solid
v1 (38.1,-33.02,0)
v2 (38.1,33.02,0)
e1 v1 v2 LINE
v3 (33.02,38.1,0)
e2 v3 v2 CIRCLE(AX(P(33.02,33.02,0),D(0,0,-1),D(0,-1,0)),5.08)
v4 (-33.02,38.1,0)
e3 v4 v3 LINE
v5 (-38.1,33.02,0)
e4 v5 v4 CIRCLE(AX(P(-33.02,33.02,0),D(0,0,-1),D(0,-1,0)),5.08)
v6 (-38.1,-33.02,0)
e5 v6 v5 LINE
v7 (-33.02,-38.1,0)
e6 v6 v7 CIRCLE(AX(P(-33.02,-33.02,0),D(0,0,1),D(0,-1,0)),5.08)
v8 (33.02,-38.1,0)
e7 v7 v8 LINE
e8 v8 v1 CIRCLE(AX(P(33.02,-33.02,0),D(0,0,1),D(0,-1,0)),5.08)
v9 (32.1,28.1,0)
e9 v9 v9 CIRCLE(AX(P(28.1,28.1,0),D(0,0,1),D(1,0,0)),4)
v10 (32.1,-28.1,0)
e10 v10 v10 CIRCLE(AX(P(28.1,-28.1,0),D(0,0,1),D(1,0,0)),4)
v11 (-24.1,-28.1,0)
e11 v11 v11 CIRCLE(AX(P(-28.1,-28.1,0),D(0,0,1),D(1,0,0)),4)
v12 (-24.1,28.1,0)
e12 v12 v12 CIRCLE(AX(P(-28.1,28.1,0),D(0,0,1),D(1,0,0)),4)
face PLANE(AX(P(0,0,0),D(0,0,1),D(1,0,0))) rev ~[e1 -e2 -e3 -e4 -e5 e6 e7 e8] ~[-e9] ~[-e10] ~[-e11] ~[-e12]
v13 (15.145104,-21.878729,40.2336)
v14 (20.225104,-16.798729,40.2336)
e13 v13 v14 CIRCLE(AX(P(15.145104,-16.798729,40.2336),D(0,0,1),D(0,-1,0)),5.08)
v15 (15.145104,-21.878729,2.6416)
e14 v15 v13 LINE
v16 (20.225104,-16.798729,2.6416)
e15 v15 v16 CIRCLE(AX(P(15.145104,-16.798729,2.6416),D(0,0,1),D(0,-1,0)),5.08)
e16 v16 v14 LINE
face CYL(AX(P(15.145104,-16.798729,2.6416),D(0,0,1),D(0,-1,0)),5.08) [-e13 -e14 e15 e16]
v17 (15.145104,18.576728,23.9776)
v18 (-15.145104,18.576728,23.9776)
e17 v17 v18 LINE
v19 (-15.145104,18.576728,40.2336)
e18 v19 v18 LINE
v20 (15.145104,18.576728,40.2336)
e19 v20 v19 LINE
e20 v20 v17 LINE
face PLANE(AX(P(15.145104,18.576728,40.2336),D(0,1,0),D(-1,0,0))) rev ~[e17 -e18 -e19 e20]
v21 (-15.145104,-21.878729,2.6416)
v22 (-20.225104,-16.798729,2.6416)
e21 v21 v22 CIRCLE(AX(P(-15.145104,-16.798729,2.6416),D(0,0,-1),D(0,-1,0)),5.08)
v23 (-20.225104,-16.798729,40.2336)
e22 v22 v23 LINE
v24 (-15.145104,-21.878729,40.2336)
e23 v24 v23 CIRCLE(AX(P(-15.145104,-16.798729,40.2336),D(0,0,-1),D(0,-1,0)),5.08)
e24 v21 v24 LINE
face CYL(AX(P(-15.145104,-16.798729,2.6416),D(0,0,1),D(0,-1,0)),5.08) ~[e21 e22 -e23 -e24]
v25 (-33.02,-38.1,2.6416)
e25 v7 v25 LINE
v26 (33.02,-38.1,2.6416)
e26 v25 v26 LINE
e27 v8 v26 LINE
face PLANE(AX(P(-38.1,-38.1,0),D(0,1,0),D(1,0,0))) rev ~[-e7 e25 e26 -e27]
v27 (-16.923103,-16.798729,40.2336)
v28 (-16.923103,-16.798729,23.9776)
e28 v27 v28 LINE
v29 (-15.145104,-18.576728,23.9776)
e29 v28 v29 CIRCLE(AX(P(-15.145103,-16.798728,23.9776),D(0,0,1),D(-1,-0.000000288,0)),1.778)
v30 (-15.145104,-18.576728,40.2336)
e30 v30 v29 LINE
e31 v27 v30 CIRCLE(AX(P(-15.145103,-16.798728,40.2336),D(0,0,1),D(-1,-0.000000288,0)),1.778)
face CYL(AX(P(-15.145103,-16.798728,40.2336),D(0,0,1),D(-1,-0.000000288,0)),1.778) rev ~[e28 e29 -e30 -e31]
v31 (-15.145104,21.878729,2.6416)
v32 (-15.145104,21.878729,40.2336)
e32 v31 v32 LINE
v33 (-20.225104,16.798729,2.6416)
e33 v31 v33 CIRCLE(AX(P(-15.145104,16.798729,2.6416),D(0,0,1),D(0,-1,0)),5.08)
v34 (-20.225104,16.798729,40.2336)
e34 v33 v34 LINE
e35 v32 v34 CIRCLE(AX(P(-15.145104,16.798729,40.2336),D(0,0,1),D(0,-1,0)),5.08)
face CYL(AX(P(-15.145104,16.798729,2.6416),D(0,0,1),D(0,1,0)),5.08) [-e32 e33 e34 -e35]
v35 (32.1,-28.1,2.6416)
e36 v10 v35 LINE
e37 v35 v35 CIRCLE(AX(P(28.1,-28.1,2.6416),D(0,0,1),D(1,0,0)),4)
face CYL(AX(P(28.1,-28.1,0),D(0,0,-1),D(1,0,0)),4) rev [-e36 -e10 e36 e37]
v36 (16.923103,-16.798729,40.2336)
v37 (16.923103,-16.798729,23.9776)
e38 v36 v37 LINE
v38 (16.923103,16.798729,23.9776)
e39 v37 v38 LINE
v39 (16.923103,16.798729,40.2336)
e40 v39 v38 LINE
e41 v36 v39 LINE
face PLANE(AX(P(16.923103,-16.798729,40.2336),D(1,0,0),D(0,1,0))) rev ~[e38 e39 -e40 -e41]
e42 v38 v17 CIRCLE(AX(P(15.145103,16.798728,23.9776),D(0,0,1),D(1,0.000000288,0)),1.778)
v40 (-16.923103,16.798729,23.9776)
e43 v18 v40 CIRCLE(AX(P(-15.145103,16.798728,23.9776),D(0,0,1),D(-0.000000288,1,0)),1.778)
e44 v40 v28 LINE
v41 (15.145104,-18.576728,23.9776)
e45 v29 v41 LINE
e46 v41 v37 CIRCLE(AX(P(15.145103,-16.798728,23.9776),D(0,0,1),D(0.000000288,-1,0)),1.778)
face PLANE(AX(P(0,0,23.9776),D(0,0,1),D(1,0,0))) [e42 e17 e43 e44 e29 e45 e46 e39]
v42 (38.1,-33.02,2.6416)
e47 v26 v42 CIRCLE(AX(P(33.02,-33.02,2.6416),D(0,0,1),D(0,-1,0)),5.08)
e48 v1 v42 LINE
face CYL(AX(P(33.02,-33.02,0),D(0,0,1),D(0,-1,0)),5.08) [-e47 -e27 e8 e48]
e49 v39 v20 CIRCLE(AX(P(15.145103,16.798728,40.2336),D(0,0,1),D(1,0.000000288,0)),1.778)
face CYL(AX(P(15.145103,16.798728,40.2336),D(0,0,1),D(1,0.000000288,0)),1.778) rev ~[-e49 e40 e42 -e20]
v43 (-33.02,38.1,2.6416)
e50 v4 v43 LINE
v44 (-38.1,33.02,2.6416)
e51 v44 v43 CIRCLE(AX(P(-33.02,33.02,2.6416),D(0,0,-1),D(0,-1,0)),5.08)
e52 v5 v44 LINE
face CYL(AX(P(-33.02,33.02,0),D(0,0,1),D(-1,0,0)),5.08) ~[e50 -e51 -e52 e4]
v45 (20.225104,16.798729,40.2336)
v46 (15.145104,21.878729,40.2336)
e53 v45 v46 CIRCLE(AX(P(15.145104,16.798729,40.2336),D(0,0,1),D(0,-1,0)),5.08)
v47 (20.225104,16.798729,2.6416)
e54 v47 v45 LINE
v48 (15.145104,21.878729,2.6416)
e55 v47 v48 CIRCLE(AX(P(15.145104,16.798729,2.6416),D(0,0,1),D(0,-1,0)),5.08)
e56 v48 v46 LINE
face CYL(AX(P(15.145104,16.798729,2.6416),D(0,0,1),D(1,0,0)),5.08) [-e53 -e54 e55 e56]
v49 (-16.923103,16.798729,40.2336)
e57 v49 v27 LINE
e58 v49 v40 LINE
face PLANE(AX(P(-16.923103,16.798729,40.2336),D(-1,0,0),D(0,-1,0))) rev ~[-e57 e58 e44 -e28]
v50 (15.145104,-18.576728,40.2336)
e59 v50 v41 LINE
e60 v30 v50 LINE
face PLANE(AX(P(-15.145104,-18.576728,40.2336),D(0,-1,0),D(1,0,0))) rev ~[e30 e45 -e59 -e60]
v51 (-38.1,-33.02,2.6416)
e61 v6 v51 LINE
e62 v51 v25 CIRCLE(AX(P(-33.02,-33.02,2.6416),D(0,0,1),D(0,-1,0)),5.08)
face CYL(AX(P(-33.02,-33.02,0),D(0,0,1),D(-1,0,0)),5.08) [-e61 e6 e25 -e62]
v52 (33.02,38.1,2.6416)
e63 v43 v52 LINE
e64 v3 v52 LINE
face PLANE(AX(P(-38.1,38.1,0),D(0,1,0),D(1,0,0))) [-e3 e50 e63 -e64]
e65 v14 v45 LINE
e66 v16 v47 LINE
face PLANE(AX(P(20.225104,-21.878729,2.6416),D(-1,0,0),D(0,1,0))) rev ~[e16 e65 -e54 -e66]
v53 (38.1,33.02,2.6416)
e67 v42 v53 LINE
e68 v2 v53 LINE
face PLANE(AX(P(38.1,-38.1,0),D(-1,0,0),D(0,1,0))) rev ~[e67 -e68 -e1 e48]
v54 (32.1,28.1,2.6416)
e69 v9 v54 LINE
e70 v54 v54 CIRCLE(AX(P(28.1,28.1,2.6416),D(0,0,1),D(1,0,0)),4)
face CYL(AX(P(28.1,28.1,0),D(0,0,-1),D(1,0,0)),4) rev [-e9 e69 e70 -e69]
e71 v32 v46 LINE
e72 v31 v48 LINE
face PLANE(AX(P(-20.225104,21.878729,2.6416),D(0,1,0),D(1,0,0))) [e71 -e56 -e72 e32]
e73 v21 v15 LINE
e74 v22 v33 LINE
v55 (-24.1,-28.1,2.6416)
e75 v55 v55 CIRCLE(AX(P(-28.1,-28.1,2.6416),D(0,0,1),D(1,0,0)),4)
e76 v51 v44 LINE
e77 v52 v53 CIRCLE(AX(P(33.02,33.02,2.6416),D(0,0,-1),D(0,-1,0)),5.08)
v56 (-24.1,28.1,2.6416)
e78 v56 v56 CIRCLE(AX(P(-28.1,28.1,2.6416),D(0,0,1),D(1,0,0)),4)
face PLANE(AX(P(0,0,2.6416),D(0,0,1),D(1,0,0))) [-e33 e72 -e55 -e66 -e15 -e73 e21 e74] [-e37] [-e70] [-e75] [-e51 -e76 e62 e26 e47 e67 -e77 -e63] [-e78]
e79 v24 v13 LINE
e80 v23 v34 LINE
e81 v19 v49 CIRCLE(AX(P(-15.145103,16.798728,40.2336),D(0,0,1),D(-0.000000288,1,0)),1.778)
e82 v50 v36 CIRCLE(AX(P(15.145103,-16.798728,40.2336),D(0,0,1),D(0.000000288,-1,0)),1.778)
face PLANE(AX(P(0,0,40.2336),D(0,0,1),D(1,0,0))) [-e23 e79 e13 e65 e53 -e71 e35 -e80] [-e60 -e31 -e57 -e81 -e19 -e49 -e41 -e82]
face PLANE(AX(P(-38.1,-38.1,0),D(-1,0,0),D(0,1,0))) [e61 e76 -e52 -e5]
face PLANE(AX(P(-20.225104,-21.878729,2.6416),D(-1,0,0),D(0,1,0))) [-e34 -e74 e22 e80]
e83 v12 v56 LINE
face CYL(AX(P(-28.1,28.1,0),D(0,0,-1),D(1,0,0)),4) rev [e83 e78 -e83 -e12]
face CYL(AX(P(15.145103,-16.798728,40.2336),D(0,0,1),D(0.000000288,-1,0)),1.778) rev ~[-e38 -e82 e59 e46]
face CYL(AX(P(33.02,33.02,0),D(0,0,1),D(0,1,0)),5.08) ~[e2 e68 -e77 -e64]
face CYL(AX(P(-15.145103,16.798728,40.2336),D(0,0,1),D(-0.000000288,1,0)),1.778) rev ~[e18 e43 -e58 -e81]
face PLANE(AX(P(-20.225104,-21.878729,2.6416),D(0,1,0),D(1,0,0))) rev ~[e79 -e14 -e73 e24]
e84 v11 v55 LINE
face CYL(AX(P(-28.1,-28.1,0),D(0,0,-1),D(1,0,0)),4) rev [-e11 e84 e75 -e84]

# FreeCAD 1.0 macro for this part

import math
import FreeCAD as App
import Part
import Sketcher
from FreeCAD import Vector
Q = App.Units.Quantity


def edges_at(feature, points):
    """Names of the edges that pass closest to the given points."""
    edges = feature.Shape.Edges
    near = lambda p: min(range(len(edges)), key=lambda i: edges[i].distToShape(Part.Vertex(*p))[0])
    return sorted({f"Edge{near(p) + 1}" for p in points})

doc = App.newDocument("Part")
body = doc.addObject("PartDesign::Body", "Body")

# Sketch on XY plane
sketch1 = doc.addObject("Sketcher::SketchObject", "Sketch")
body.addObject(sketch1)
sketch1.AttachmentSupport = (doc.XY_Plane, [""])
sketch1.MapMode = "FlatFace"
sketch1.addGeometry([
    Part.LineSegment(Vector(-38.1, 38.1, 0), Vector(-38.1, -38.1, 0)),  # 0
    Part.LineSegment(Vector(-38.1, -38.1, 0), Vector(38.1, -38.1, 0)),  # 1
    Part.LineSegment(Vector(38.1, -38.1, 0), Vector(38.1, 38.1, 0)),  # 2
    Part.LineSegment(Vector(38.1, 38.1, 0), Vector(-38.1, 38.1, 0)),  # 3
    Part.Circle(Vector(-28.1, -28.1, 0), Vector(0, 0, 1), 4),  # 4
    Part.Circle(Vector(28.1, -28.1, 0), Vector(0, 0, 1), 4),  # 5
    Part.Circle(Vector(-28.1, 28.1, 0), Vector(0, 0, 1), 4),  # 6
    Part.Circle(Vector(28.1, 28.1, 0), Vector(0, 0, 1), 4),  # 7
], False)
sketch1.addConstraint([
    Sketcher.Constraint("Coincident", 0, 2, 1, 1),
    Sketcher.Constraint("Coincident", 1, 2, 2, 1),
    Sketcher.Constraint("Coincident", 2, 2, 3, 1),
    Sketcher.Constraint("Coincident", 3, 2, 0, 1),
    Sketcher.Constraint("Vertical", 0),
    Sketcher.Constraint("Horizontal", 1),
    Sketcher.Constraint("Vertical", 2),
    Sketcher.Constraint("Horizontal", 3),
    Sketcher.Constraint("Equal", 4, 5),
    Sketcher.Constraint("Equal", 5, 6),
    Sketcher.Constraint("Equal", 6, 7),
    Sketcher.Constraint("Symmetric", 5, 3, 6, 3, -1, 1),
    Sketcher.Constraint("Symmetric", 4, 3, 7, 3, -1, 1),
    Sketcher.Constraint("Symmetric", 0, 2, 2, 2, -1, 1),
    Sketcher.Constraint("Symmetric", 4, 3, 5, 3, -2),
    Sketcher.Constraint("Equal", 3, 0),
    Sketcher.Constraint("DistanceX", 1, 1, 1, 2, Q("3 in")),
    Sketcher.Constraint("Diameter", 4, 8.0),
    Sketcher.Constraint("DistanceX", 4, 3, -1, 1, 28.1),
    Sketcher.Constraint("DistanceY", 4, 3, -1, 1, 28.1),
])
pad1 = doc.addObject("PartDesign::Pad", "Pad")
body.addObject(pad1)
pad1.Profile = sketch1
pad1.Length = Q("0.104 in")
doc.recompute()

fillet = doc.addObject("PartDesign::Fillet", "Fillet")
body.addObject(fillet)
fillet.Base = (pad1, edges_at(pad1, [
    (-38.1, -38.1, 1.321),
    (38.1, -38.1, 1.321),
    (38.1, 38.1, 1.321),
    (-38.1, 38.1, 1.321),
]))
fillet.Radius = Q("0.2 in")

# Sketch on XY plane
sketch2 = doc.addObject("Sketcher::SketchObject", "Sketch001")
body.addObject(sketch2)
sketch2.AttachmentSupport = (doc.XY_Plane, [""])
sketch2.MapMode = "FlatFace"
sketch2.AttachmentOffset = App.Placement(Vector(0, 0, 0.104 * 25.4), App.Rotation())
sketch2.addGeometry([
    Part.LineSegment(Vector(-20.225104, 21.878729, 0), Vector(-20.225104, -21.878729, 0)),
    Part.LineSegment(Vector(-20.225104, -21.878729, 0), Vector(20.225104, -21.878729, 0)),
    Part.LineSegment(Vector(20.225104, -21.878729, 0), Vector(20.225104, 21.878729, 0)),
    Part.LineSegment(Vector(20.225104, 21.878729, 0), Vector(-20.225104, 21.878729, 0)),
], False)
sketch2.addConstraint([
    Sketcher.Constraint("Coincident", 0, 2, 1, 1),
    Sketcher.Constraint("Coincident", 1, 2, 2, 1),
    Sketcher.Constraint("Coincident", 2, 2, 3, 1),
    Sketcher.Constraint("Coincident", 3, 2, 0, 1),
    Sketcher.Constraint("Vertical", 0),
    Sketcher.Constraint("Horizontal", 1),
    Sketcher.Constraint("Vertical", 2),
    Sketcher.Constraint("Horizontal", 3),
    Sketcher.Constraint("Symmetric", 0, 2, 2, 2, -1, 1),
    Sketcher.Constraint("DistanceX", 1, 1, 1, 2, 40.450208),
    Sketcher.Constraint("DistanceY", 0, 2, 0, 1, 43.757458),
])
pad2 = doc.addObject("PartDesign::Pad", "Pad001")
body.addObject(pad2)
pad2.Profile = sketch2
pad2.Length = Q("1.48 in")
doc.recompute()

fillet2 = doc.addObject("PartDesign::Fillet", "Fillet001")
body.addObject(fillet2)
fillet2.Base = (pad2, edges_at(pad2, [
    (-20.225, -21.879, 21.438),
    (20.225, -21.879, 21.438),
    (20.225, 21.879, 21.438),
    (-20.225, 21.879, 21.438),
]))
fillet2.Radius = Q("0.2 in")

# Sketch on XY plane
sketch3 = doc.addObject("Sketcher::SketchObject", "Sketch002")
body.addObject(sketch3)
sketch3.AttachmentSupport = (doc.XY_Plane, [""])
sketch3.MapMode = "FlatFace"
sketch3.AttachmentOffset = App.Placement(Vector(0, 0, 1.584 * 25.4), App.Rotation())
sketch3.addGeometry([
    Part.LineSegment(Vector(-16.923103, 16.798729, 0), Vector(-16.923103, -16.798729, 0)),  # 0
    Part.ArcOfCircle(Part.Circle(Vector(-15.145103, -16.798728, 0), Vector(0, 0, 1), 1.778), math.radians(-179.999984), math.radians(-90.000016)),  # 1
    Part.LineSegment(Vector(-15.145104, -18.576728, 0), Vector(15.145104, -18.576728, 0)),  # 2
    Part.ArcOfCircle(Part.Circle(Vector(15.145103, -16.798728, 0), Vector(0, 0, 1), 1.778), math.radians(-89.999984), math.radians(-0.000016)),  # 3
    Part.LineSegment(Vector(16.923103, -16.798729, 0), Vector(16.923103, 16.798729, 0)),  # 4
    Part.ArcOfCircle(Part.Circle(Vector(15.145103, 16.798728, 0), Vector(0, 0, 1), 1.778), math.radians(0.000016), math.radians(89.999984)),  # 5
    Part.LineSegment(Vector(15.145104, 18.576728, 0), Vector(-15.145104, 18.576728, 0)),  # 6
    Part.ArcOfCircle(Part.Circle(Vector(-15.145103, 16.798728, 0), Vector(0, 0, 1), 1.778), math.radians(90.000016), math.radians(179.999984)),  # 7
], False)
sketch3.addConstraint([
    Sketcher.Constraint("Tangent", 0, 2, 1, 1),
    Sketcher.Constraint("Tangent", 1, 2, 2, 1),
    Sketcher.Constraint("Tangent", 2, 2, 3, 1),
    Sketcher.Constraint("Tangent", 3, 2, 4, 1),
    Sketcher.Constraint("Tangent", 4, 2, 5, 1),
    Sketcher.Constraint("Tangent", 5, 2, 6, 1),
    Sketcher.Constraint("Tangent", 6, 2, 7, 1),
    Sketcher.Constraint("Tangent", 7, 2, 0, 1),
    Sketcher.Constraint("Vertical", 0),
    Sketcher.Constraint("Horizontal", 2),
    Sketcher.Constraint("Vertical", 4),
    Sketcher.Constraint("Horizontal", 6),
    Sketcher.Constraint("Equal", 1, 3),
    Sketcher.Constraint("Equal", 3, 5),
    Sketcher.Constraint("Equal", 5, 7),
    Sketcher.Constraint("Symmetric", 1, 3, 5, 3, -1, 1),
    Sketcher.Constraint("Radius", 1, Q("0.07 in")),
    Sketcher.Constraint("DistanceX", 2, 1, 2, 2, 30.290208),
    Sketcher.Constraint("DistanceY", 0, 2, 0, 1, 33.597458),
])
pocket1 = doc.addObject("PartDesign::Pocket", "Pocket")
body.addObject(pocket1)
pocket1.Profile = sketch3
pocket1.Length = Q("0.64 in")

doc.recompute()
